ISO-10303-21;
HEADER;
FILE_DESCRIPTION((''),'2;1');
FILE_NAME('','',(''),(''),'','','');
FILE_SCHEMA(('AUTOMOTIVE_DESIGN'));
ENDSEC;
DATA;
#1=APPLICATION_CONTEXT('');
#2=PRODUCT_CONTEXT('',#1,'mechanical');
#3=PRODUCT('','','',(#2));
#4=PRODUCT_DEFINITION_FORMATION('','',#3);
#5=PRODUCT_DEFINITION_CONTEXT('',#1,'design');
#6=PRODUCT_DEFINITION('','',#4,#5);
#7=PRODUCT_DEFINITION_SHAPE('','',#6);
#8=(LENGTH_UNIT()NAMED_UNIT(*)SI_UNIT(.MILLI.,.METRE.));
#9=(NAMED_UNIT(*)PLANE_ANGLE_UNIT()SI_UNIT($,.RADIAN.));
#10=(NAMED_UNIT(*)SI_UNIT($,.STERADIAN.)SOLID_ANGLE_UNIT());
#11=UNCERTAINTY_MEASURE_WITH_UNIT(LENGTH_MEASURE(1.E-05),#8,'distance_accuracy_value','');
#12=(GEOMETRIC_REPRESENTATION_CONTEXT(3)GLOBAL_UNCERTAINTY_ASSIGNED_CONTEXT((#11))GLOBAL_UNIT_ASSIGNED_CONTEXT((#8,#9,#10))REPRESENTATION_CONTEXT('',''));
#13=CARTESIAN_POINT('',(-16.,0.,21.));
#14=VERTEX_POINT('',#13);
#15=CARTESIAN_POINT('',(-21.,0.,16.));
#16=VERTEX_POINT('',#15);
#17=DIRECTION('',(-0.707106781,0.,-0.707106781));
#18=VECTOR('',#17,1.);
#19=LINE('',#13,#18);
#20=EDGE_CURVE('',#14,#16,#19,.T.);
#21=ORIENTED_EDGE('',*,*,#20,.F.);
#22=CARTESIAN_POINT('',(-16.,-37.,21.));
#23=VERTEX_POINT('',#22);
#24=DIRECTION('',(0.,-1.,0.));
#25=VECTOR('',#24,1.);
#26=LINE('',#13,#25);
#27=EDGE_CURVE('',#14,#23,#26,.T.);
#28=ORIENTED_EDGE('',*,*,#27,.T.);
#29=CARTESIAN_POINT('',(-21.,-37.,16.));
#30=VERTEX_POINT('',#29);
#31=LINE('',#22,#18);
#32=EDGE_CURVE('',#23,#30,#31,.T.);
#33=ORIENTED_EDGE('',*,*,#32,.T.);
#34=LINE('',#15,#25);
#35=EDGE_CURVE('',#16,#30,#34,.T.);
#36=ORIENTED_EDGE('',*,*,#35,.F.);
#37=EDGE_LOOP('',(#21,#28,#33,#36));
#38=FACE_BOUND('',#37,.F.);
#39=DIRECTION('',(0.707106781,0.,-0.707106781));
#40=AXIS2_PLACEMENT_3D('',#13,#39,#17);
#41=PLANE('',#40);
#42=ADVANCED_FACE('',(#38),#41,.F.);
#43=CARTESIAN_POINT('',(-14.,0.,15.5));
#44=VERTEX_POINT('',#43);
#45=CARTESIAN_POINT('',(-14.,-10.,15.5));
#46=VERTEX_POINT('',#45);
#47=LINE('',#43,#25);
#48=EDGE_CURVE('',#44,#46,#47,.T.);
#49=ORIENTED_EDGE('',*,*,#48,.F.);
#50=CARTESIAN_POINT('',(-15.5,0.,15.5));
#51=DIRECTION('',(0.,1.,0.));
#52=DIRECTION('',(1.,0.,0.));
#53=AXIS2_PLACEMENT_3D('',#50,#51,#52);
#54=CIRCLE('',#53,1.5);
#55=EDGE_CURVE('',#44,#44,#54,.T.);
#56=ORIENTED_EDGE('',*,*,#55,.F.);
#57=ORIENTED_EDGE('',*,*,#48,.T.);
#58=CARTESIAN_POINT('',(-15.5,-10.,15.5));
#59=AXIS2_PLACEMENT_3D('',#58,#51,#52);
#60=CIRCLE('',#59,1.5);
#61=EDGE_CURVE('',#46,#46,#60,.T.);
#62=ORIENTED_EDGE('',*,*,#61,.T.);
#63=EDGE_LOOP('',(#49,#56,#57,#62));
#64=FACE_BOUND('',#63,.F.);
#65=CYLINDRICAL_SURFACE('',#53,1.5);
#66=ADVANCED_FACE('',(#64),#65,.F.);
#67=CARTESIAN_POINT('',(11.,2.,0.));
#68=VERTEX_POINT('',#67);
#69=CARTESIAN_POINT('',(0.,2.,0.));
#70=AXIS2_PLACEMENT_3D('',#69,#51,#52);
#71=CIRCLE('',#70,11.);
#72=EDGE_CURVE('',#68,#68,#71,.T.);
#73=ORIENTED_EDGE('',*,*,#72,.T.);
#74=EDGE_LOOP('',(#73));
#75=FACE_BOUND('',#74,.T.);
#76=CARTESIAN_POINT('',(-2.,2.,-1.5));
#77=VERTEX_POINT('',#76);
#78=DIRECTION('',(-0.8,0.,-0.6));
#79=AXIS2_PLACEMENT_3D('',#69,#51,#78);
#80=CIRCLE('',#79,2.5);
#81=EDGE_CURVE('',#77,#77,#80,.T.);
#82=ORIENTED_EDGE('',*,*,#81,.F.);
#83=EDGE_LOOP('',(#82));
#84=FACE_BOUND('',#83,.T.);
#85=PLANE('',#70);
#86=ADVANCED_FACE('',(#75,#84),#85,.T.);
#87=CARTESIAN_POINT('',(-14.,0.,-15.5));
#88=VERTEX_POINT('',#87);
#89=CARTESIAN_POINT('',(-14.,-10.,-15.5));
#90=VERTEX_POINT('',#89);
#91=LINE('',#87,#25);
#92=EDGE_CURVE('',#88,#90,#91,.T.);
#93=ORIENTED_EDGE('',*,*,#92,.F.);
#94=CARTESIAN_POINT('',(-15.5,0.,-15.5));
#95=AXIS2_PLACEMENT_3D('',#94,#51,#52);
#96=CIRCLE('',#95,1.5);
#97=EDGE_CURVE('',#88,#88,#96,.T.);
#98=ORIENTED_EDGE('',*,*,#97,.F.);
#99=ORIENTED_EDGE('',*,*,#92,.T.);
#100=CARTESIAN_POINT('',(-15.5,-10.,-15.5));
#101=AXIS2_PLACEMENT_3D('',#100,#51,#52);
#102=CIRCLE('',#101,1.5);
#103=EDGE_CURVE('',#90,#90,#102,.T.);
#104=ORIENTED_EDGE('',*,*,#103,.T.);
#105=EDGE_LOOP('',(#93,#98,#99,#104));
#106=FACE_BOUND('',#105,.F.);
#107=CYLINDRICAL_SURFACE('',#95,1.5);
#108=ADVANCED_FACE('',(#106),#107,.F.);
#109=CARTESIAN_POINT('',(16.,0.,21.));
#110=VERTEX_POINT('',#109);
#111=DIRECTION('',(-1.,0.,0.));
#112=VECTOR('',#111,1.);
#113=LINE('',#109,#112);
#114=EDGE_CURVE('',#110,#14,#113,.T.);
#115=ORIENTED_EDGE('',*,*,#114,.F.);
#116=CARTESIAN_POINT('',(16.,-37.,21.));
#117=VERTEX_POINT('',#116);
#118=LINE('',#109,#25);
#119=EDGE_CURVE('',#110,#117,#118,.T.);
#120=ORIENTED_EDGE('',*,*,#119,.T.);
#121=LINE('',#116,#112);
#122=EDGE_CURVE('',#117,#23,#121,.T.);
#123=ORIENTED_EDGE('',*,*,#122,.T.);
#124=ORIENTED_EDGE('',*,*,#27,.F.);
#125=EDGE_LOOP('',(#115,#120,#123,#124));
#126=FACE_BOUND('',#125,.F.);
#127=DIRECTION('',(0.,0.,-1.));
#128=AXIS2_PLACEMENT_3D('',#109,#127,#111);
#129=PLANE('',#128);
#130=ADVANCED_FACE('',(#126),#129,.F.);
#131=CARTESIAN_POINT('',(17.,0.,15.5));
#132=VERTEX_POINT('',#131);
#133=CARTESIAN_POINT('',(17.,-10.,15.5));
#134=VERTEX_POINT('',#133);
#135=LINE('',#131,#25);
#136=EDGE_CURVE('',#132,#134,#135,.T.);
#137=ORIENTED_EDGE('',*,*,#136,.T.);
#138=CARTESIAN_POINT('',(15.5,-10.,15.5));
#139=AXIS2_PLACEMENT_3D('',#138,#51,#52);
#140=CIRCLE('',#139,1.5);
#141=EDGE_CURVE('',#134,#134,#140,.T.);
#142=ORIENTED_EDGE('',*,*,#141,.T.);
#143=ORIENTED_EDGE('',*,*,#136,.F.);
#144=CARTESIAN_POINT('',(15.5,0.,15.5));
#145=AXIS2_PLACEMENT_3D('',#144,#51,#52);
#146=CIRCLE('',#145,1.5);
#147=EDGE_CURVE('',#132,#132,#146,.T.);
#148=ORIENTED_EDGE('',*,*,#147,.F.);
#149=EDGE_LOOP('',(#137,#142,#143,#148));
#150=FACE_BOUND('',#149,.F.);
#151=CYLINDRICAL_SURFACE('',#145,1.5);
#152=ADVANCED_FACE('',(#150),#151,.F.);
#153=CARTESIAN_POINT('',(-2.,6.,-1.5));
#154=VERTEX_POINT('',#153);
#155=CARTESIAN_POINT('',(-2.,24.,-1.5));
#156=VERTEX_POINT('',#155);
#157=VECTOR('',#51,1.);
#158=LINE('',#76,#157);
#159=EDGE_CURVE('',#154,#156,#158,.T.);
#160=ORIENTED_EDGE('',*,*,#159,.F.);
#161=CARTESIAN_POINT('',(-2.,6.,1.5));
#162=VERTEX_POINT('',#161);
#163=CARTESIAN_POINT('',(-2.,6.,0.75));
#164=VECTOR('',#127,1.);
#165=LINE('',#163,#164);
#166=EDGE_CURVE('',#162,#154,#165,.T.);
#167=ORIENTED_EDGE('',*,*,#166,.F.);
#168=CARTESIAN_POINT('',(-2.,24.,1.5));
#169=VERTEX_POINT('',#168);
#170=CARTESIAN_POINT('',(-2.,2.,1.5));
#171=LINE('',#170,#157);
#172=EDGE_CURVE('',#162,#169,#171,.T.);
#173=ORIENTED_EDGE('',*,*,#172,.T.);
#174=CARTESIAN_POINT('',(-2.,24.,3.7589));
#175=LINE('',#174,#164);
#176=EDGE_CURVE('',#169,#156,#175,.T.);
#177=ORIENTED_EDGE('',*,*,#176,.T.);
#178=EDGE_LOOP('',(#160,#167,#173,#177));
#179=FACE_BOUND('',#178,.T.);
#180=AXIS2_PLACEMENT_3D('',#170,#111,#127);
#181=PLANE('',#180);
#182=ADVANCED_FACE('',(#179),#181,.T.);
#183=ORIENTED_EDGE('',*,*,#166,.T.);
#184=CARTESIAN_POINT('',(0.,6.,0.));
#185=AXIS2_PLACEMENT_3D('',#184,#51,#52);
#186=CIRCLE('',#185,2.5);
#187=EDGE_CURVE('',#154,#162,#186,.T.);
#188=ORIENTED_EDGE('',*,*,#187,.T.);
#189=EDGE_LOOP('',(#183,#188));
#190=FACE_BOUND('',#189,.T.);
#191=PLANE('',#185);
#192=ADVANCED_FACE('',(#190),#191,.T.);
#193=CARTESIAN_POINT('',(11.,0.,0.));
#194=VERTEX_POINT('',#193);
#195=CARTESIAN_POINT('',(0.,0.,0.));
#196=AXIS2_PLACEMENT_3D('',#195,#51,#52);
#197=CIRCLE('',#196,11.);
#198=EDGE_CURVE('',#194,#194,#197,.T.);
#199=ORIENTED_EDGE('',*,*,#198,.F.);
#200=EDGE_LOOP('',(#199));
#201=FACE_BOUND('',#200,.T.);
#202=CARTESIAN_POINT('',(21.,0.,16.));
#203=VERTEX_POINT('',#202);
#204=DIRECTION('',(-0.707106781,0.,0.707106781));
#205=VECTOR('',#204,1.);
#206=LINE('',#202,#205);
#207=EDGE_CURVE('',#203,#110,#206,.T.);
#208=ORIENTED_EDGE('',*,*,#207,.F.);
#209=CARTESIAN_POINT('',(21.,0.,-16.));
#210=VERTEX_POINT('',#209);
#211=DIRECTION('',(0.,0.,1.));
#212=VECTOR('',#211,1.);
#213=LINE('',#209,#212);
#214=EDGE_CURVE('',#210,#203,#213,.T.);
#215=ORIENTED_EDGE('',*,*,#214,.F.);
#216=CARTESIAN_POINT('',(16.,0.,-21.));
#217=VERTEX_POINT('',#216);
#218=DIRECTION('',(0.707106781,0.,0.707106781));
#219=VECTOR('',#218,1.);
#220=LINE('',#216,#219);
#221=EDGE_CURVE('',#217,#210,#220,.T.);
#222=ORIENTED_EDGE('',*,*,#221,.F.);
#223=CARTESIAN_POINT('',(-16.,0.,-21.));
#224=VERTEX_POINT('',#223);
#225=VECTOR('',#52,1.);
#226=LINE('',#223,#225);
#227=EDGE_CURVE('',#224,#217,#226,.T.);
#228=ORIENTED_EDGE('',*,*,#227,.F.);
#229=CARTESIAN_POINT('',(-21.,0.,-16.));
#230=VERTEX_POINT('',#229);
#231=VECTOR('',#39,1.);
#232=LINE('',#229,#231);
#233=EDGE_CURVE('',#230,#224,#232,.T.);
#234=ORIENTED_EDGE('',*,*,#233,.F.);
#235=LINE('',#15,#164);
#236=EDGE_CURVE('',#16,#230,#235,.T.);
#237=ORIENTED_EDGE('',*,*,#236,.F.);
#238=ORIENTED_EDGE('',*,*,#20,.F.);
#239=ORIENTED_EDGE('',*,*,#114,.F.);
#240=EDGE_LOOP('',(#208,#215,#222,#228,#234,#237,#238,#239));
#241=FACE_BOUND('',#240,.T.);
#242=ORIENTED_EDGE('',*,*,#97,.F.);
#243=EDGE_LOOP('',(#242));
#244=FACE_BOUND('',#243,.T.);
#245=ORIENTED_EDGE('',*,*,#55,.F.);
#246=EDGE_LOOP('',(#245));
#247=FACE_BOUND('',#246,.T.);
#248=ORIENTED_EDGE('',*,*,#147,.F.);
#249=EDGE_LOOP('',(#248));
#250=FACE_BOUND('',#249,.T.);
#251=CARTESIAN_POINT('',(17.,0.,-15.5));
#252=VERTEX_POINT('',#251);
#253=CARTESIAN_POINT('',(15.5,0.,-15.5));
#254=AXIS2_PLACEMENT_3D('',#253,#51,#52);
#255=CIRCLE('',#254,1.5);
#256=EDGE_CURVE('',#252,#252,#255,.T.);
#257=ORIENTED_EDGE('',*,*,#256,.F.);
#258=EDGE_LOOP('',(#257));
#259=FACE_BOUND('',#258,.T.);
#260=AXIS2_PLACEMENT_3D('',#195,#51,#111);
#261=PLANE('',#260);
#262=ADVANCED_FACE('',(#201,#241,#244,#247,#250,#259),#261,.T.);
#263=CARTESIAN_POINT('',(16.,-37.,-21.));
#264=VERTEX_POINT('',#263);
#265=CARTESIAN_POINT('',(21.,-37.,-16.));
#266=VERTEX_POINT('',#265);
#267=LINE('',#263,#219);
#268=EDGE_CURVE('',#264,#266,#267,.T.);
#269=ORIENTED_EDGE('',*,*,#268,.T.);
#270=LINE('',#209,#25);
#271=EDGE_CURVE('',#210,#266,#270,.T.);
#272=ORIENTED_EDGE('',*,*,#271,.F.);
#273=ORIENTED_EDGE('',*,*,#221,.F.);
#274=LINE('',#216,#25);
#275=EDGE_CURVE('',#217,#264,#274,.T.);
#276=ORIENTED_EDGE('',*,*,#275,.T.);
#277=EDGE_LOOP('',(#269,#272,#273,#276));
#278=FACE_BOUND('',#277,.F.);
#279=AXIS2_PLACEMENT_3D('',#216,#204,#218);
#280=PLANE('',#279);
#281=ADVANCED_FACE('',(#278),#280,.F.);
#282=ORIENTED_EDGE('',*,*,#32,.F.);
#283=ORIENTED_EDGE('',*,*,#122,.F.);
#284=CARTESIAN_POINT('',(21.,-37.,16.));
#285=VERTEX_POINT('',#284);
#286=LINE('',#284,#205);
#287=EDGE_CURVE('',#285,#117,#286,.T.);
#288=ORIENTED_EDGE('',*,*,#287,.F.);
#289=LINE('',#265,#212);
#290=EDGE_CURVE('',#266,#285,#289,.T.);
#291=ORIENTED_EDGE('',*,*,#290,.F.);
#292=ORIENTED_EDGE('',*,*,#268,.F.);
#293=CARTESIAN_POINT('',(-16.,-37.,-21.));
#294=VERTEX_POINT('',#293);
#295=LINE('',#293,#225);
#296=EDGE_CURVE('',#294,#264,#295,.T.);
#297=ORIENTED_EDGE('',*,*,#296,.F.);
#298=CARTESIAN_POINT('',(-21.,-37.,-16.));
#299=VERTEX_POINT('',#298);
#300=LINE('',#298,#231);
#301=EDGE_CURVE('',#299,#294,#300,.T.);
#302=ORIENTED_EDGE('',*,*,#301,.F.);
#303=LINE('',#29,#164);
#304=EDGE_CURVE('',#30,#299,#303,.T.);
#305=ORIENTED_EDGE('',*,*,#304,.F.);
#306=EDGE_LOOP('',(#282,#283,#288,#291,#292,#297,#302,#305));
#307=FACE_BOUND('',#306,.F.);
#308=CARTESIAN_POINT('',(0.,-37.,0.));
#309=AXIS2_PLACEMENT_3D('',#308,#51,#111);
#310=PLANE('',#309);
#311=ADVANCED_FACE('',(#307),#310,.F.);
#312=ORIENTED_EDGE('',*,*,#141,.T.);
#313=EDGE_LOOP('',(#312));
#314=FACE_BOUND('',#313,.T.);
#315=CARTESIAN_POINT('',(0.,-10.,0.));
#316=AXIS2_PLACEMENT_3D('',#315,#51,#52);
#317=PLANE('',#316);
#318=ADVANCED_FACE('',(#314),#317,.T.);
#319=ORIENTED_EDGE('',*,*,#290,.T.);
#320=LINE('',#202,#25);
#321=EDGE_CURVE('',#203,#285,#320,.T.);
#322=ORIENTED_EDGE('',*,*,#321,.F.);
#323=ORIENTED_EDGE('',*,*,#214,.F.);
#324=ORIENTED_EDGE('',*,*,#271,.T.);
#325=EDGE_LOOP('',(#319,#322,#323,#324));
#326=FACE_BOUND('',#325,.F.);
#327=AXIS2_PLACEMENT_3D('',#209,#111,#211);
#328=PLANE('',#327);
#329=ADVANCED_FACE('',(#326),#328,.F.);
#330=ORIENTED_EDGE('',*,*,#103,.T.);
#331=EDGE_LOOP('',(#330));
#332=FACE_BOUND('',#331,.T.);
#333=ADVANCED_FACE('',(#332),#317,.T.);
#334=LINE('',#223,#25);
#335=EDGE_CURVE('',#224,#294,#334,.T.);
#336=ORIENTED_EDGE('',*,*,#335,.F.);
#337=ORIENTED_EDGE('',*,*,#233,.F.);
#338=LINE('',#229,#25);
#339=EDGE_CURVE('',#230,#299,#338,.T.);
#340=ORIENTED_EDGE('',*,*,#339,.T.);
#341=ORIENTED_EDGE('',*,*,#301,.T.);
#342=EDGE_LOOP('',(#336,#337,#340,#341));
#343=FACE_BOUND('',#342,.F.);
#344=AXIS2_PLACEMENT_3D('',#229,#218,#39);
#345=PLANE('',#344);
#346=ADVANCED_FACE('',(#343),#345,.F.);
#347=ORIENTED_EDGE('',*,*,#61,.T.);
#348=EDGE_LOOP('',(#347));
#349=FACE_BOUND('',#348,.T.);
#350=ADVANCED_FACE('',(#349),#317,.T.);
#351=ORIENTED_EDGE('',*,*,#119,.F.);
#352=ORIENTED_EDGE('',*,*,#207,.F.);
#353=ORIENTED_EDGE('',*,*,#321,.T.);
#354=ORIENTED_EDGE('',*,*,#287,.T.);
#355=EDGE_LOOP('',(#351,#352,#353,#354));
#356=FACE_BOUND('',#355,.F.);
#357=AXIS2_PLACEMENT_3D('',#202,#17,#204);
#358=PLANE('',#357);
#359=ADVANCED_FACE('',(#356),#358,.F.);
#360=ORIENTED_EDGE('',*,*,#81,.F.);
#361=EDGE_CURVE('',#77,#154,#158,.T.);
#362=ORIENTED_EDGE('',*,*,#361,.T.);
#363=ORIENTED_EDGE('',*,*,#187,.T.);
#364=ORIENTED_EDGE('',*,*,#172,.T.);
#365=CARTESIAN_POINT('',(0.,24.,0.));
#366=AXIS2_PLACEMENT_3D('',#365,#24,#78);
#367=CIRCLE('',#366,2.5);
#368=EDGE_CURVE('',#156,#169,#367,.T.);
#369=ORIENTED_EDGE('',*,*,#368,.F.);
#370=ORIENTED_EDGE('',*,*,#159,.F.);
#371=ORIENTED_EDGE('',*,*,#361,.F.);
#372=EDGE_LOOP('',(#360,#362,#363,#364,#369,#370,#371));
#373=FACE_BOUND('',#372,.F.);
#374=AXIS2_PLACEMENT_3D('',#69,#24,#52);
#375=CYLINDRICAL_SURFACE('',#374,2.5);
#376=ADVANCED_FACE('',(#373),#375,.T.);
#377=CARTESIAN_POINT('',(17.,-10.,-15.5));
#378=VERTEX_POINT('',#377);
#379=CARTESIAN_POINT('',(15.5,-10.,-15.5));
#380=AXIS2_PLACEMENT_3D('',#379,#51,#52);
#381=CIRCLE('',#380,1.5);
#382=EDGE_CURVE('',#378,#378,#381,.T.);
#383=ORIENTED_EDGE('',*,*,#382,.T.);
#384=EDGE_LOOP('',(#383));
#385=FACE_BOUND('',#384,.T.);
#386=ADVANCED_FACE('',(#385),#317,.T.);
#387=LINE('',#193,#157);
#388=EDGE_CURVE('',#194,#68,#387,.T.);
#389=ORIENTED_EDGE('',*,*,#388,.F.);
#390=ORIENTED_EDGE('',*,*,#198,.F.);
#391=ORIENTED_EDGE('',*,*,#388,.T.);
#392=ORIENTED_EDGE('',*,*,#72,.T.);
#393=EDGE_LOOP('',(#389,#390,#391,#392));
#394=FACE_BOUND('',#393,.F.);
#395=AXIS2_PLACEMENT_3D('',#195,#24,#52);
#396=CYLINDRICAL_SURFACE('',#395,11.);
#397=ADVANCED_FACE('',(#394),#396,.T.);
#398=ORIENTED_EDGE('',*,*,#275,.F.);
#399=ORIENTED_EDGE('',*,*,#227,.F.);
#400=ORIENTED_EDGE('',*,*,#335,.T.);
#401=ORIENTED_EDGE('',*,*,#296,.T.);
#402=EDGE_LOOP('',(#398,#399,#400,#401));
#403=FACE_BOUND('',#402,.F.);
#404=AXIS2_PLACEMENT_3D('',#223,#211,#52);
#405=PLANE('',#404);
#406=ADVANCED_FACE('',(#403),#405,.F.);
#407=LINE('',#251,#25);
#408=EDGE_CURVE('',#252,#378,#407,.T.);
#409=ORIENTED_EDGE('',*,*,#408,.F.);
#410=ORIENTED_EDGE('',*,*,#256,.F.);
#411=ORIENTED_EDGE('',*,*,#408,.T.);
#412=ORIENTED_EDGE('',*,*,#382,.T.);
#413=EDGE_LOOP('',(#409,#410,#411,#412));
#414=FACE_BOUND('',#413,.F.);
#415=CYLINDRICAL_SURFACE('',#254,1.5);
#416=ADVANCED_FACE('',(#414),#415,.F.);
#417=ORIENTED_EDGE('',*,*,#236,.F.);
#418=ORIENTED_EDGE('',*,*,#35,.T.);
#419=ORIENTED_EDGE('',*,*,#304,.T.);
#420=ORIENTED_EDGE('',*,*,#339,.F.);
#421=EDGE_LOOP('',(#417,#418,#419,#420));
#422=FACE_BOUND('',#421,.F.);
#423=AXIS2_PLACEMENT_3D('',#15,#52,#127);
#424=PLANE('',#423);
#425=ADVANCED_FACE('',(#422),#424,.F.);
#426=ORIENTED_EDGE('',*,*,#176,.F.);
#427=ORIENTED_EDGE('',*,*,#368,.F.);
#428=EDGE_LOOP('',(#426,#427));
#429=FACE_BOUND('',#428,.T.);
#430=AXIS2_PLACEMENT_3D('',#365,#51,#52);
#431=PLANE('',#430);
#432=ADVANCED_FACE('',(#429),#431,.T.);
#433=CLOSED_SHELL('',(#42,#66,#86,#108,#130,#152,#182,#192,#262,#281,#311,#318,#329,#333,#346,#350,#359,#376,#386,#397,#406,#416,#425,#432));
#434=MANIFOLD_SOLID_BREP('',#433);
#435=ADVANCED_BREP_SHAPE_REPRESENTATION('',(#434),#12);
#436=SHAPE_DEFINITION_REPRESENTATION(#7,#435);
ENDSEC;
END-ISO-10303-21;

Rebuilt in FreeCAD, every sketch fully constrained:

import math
import FreeCAD as App
import Part
import Sketcher

V = App.Vector

doc = App.newDocument("Part")
body = doc.addObject("PartDesign::Body", "Body")

# Sketch on XZ plane
sketch1 = body.newObject("Sketcher::SketchObject", "Sketch")
sketch1.AttachmentSupport = (doc.getObject("XZ_Plane"), [""])
sketch1.MapMode = "FlatFace"
sketch1.addGeometry(Part.LineSegment(V(-16, 21, 0), V(16, 21, 0)), False)
sketch1.addGeometry(Part.LineSegment(V(16, 21, 0), V(21, 16, 0)), False)
sketch1.addGeometry(Part.LineSegment(V(21, 16, 0), V(21, -16, 0)), False)
sketch1.addGeometry(Part.LineSegment(V(21, -16, 0), V(16, -21, 0)), False)
sketch1.addGeometry(Part.LineSegment(V(16, -21, 0), V(-16, -21, 0)), False)
sketch1.addGeometry(Part.LineSegment(V(-16, -21, 0), V(-21, -16, 0)), False)
sketch1.addGeometry(Part.LineSegment(V(-21, -16, 0), V(-21, 16, 0)), False)
sketch1.addGeometry(Part.LineSegment(V(-21, 16, 0), V(-16, 21, 0)), False)
sketch1.addConstraint(Sketcher.Constraint("Coincident", 0, 2, 1, 1))
sketch1.addConstraint(Sketcher.Constraint("Coincident", 1, 2, 2, 1))
sketch1.addConstraint(Sketcher.Constraint("Coincident", 2, 2, 3, 1))
sketch1.addConstraint(Sketcher.Constraint("Coincident", 3, 2, 4, 1))
sketch1.addConstraint(Sketcher.Constraint("Coincident", 4, 2, 5, 1))
sketch1.addConstraint(Sketcher.Constraint("Coincident", 5, 2, 6, 1))
sketch1.addConstraint(Sketcher.Constraint("Coincident", 6, 2, 7, 1))
sketch1.addConstraint(Sketcher.Constraint("Coincident", 7, 2, 0, 1))
sketch1.addConstraint(Sketcher.Constraint("Horizontal", 0))
sketch1.addConstraint(Sketcher.Constraint("Vertical", 2))
sketch1.addConstraint(Sketcher.Constraint("Horizontal", 4))
sketch1.addConstraint(Sketcher.Constraint("Vertical", 6))
sketch1.addConstraint(Sketcher.Constraint("Symmetric", 0, 2, 4, 2, -1, 1))
sketch1.addConstraint(Sketcher.Constraint("Symmetric", 1, 2, 5, 2, -1, 1))
sketch1.addConstraint(Sketcher.Constraint("Perpendicular", 1, 3))
sketch1.addConstraint(Sketcher.Constraint("Perpendicular", 5, 7))
sketch1.addConstraint(Sketcher.Constraint("Horizontal", 2, 2, 5, 2))
sketch1.addConstraint(Sketcher.Constraint("Horizontal", 1, 2, 6, 2))
sketch1.addConstraint(Sketcher.Constraint("Vertical", 0, 2, 3, 2))
sketch1.addConstraint(Sketcher.Constraint("Equal", 4, 2))
sketch1.addConstraint(Sketcher.Constraint("DistanceX", 0, 2, 1, 2, 5.0))
sketch1.addConstraint(Sketcher.Constraint("DistanceY", 3, 2, 0, 2, 42.0))
pad1 = body.newObject("PartDesign::Pad", "Pad")
pad1.Profile = sketch1
pad1.Length = 37

# Sketch on XZ plane
sketch2 = body.newObject("Sketcher::SketchObject", "Sketch001")
sketch2.AttachmentSupport = (doc.getObject("XZ_Plane"), [""])
sketch2.MapMode = "FlatFace"
sketch2.addGeometry(Part.Circle(V(-15.5, 15.5, 0), V(0, 0, 1), 1.5), False)
sketch2.addGeometry(Part.Circle(V(-15.5, -15.5, 0), V(0, 0, 1), 1.5), False)
sketch2.addGeometry(Part.Circle(V(15.5, 15.5, 0), V(0, 0, 1), 1.5), False)
sketch2.addGeometry(Part.Circle(V(15.5, -15.5, 0), V(0, 0, 1), 1.5), False)
sketch2.addConstraint(Sketcher.Constraint("Equal", 0, 1))
sketch2.addConstraint(Sketcher.Constraint("Equal", 1, 2))
sketch2.addConstraint(Sketcher.Constraint("Equal", 2, 3))
sketch2.addConstraint(Sketcher.Constraint("Symmetric", 1, 3, 2, 3, -1, 1))
sketch2.addConstraint(Sketcher.Constraint("Symmetric", 0, 3, 3, 3, -1, 1))
sketch2.addConstraint(Sketcher.Constraint("Symmetric", 0, 3, 2, 3, -2))
sketch2.addConstraint(Sketcher.Constraint("Diameter", 0, 3.0))
sketch2.addConstraint(Sketcher.Constraint("DistanceY", 1, 3, 0, 3, 31.0))
sketch2.addConstraint(Sketcher.Constraint("DistanceX", 0, 3, 2, 3, 31.0))
pocket1 = body.newObject("PartDesign::Pocket", "Pocket")
pocket1.Profile = sketch2
pocket1.Length = 10
pocket1.Reversed = True

# Sketch on XZ plane
sketch3 = body.newObject("Sketcher::SketchObject", "Sketch002")
sketch3.AttachmentSupport = (doc.getObject("XZ_Plane"), [""])
sketch3.MapMode = "FlatFace"
sketch3.addGeometry(Part.Circle(V(0, 0, 0), V(0, 0, 1), 11), False)
sketch3.addConstraint(Sketcher.Constraint("Coincident", 0, 3, -1, 1))
sketch3.addConstraint(Sketcher.Constraint("Diameter", 0, 22.0))
pad2 = body.newObject("PartDesign::Pad", "Pad001")
pad2.Profile = sketch3
pad2.Length = 2
pad2.Reversed = True

# Sketch on XZ plane
sketch4 = body.newObject("Sketcher::SketchObject", "Sketch003")
sketch4.AttachmentSupport = (doc.getObject("XZ_Plane"), [""])
sketch4.MapMode = "FlatFace"
sketch4.AttachmentOffset = App.Placement(V(0, 0, -2), App.Rotation())
sketch4.addGeometry(Part.ArcOfCircle(Part.Circle(V(0, 0, 0), V(0, 0, 1), 2.5), math.radians(-143), math.radians(143)), False)
sketch4.addGeometry(Part.LineSegment(V(-2, -1.5, 0), V(-2, 1.5, 0)), False)
sketch4.addConstraint(Sketcher.Constraint("Coincident", 0, 1, 1, 1))
sketch4.addConstraint(Sketcher.Constraint("Coincident", 1, 2, 0, 2))
sketch4.addConstraint(Sketcher.Constraint("Vertical", 1))
sketch4.addConstraint(Sketcher.Constraint("Coincident", 0, 3, -1, 1))
sketch4.addConstraint(Sketcher.Constraint("Radius", 0, 2.5))
sketch4.addConstraint(Sketcher.Constraint("DistanceX", 0, 1, -1, 1, 2.0))
pad3 = body.newObject("PartDesign::Pad", "Pad002")
pad3.Profile = sketch4
pad3.Length = 22
pad3.Reversed = True

# Sketch on XZ plane
sketch5 = body.newObject("Sketcher::SketchObject", "Sketch004")
sketch5.AttachmentSupport = (doc.getObject("XZ_Plane"), [""])
sketch5.MapMode = "FlatFace"
sketch5.AttachmentOffset = App.Placement(V(0, 0, -2), App.Rotation())
sketch5.addGeometry(Part.Circle(V(0, 0, 0), V(0, 0, 1), 2.5), False)
sketch5.addConstraint(Sketcher.Constraint("Coincident", 0, 3, -1, 1))
sketch5.addConstraint(Sketcher.Constraint("Diameter", 0, 5.0))
pad4 = body.newObject("PartDesign::Pad", "Pad003")
pad4.Profile = sketch5
pad4.Length = 4
pad4.Reversed = True

doc.recompute()
